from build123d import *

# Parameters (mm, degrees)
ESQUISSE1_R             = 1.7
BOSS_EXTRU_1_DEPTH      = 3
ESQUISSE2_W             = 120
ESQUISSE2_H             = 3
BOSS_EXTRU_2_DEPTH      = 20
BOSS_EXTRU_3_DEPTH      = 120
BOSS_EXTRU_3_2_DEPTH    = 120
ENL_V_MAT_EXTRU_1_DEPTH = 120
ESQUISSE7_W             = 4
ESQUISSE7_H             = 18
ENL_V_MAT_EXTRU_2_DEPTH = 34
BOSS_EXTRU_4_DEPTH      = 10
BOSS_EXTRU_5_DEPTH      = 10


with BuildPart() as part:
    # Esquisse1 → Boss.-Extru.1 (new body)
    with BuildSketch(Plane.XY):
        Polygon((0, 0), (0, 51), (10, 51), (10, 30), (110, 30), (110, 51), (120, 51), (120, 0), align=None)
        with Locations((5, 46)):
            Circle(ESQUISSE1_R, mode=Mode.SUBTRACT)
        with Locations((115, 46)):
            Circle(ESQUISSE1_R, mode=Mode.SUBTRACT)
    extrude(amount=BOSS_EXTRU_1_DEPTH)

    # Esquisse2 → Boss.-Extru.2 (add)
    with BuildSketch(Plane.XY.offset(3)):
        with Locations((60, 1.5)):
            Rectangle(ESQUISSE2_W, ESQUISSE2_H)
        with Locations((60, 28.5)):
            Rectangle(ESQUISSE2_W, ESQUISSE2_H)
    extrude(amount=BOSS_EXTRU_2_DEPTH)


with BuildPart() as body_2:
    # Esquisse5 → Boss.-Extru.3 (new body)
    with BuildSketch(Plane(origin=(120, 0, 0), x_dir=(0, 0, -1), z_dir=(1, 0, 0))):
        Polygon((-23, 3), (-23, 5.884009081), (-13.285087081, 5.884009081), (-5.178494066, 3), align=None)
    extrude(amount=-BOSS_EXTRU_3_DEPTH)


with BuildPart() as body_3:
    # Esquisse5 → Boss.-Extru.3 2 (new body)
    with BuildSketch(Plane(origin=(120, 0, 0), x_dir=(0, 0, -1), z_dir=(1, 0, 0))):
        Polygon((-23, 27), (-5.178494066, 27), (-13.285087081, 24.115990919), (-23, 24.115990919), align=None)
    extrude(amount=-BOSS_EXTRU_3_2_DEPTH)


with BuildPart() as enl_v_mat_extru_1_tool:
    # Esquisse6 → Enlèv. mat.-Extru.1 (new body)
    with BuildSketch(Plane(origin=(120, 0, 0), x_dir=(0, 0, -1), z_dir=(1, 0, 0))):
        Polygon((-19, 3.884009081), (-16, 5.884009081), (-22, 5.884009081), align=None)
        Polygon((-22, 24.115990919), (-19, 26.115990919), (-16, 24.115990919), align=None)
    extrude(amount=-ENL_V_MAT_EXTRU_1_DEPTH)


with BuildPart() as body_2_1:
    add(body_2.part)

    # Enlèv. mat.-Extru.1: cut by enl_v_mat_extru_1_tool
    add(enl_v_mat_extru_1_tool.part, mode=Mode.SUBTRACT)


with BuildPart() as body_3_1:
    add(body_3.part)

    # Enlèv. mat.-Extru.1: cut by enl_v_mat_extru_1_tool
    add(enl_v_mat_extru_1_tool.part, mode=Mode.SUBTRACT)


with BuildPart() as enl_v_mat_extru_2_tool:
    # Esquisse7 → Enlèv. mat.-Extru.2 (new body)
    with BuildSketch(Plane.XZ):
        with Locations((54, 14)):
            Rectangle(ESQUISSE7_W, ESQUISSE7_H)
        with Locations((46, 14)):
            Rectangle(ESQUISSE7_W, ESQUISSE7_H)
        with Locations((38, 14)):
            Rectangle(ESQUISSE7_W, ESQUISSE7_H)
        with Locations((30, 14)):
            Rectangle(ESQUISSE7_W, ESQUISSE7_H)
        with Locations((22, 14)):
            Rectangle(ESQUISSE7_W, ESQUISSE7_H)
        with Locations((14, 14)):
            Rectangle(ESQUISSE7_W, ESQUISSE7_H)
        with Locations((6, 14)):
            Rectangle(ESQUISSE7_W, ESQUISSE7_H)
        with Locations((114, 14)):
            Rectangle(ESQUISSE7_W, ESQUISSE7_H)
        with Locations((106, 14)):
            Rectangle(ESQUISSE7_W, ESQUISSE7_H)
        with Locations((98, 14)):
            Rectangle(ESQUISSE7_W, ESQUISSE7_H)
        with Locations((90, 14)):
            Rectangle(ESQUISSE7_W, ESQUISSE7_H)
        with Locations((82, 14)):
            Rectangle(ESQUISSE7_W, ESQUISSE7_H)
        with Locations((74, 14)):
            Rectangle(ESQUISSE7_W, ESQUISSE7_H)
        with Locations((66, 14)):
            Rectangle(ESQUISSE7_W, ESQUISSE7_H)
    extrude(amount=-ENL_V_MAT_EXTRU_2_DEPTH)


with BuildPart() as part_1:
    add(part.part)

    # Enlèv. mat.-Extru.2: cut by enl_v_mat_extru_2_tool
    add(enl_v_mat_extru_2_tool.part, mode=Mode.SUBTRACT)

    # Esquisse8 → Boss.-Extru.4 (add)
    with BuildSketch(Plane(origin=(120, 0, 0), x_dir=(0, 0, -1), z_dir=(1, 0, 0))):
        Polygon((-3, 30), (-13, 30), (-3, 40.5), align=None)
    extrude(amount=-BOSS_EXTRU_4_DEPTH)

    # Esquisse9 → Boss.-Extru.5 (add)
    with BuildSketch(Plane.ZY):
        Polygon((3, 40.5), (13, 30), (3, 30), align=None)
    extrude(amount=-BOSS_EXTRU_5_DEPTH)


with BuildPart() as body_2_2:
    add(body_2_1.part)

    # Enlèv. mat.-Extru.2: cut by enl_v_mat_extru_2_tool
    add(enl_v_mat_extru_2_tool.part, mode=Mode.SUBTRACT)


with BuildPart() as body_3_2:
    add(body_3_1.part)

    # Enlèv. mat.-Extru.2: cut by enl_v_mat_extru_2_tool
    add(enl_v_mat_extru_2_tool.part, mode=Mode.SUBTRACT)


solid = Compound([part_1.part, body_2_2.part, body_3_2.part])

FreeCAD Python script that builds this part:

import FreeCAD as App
import Part
import Sketcher


def add_polygon(sketch, points):
    """Adds a closed chain of lines whose ends are joined by coincident constraints."""
    first, n = sketch.GeometryCount, len(points)
    for a, b in zip(points, points[1:] + points[:1]):
        sketch.addGeometry(Part.LineSegment(App.Vector(*a, 0), App.Vector(*b, 0)), False)
    for i in range(n):
        sketch.addConstraint(Sketcher.Constraint("Coincident", first + i, 2, first + (i + 1) % n, 1))

doc = App.newDocument("Part")
body = doc.addObject("PartDesign::Body", "Body")

sketch1 = doc.addObject("Sketcher::SketchObject", "Sketch")
body.addObject(sketch1)
sketch1.AttachmentSupport = (doc.XY_Plane, [""])
sketch1.MapMode = "FlatFace"
add_polygon(sketch1, [(0, 51), (0, 0), (120, 0), (120, 51), (110, 51), (110, 30), (10, 30), (10, 51)])
sketch1.addGeometry(Part.Circle(App.Vector(115, 46, 0), App.Vector(0, 0, 1), 1.7), False)
sketch1.addGeometry(Part.Circle(App.Vector(5, 46, 0), App.Vector(0, 0, 1), 1.7), False)
sketch1.addConstraint([
    Sketcher.Constraint("Vertical", 0),
    Sketcher.Constraint("Horizontal", 1),
    Sketcher.Constraint("Vertical", 2),
    Sketcher.Constraint("Horizontal", 3),
    Sketcher.Constraint("Vertical", 4),
    Sketcher.Constraint("Horizontal", 5),
    Sketcher.Constraint("Vertical", 6),
    Sketcher.Constraint("Horizontal", 7),
    Sketcher.Constraint("Coincident", 0, 2, -1, 1),
    Sketcher.Constraint("Equal", 8, 9),
    Sketcher.Constraint("Horizontal", 8, 3, 9, 3),
    Sketcher.Constraint("Horizontal", 3, 2, 6, 2),
    Sketcher.Constraint("Equal", 3, 7),
    Sketcher.Constraint("Diameter", 8, 3.4),
    Sketcher.Constraint("DistanceX", 1, 1, 1, 2, 120.0),
    Sketcher.Constraint("DistanceX", 3, 2, 3, 1, 10.0),
    Sketcher.Constraint("DistanceY", 0, 2, 0, 1, 51.0),
    Sketcher.Constraint("DistanceY", 4, 2, 4, 1, 21.0),
    Sketcher.Constraint("DistanceX", -1, 1, 8, 3, 115.0),
    Sketcher.Constraint("DistanceY", -1, 1, 8, 3, 46.0),
    Sketcher.Constraint("DistanceX", -1, 1, 9, 3, 5.0),
])
pad1 = doc.addObject("PartDesign::Pad", "Pad")
body.addObject(pad1)
pad1.Profile = sketch1
pad1.Length = 3

sketch2 = doc.addObject("Sketcher::SketchObject", "Sketch001")
body.addObject(sketch2)
sketch2.AttachmentSupport = (doc.XY_Plane, [""])
sketch2.MapMode = "FlatFace"
sketch2.AttachmentOffset = App.Placement(App.Vector(0, 0, 3), App.Rotation())
add_polygon(sketch2, [(0, 3), (0, 0), (120, 0), (120, 3)])
add_polygon(sketch2, [(0, 30), (0, 27), (120, 27), (120, 30)])
sketch2.addConstraint([
    Sketcher.Constraint("Vertical", 0),
    Sketcher.Constraint("Horizontal", 1),
    Sketcher.Constraint("Vertical", 2),
    Sketcher.Constraint("Horizontal", 3),
    Sketcher.Constraint("Vertical", 4),
    Sketcher.Constraint("Horizontal", 5),
    Sketcher.Constraint("Vertical", 6),
    Sketcher.Constraint("Horizontal", 7),
    Sketcher.Constraint("Coincident", 0, 2, -1, 1),
    Sketcher.Constraint("PointOnObject", 4, 2, -2),
    Sketcher.Constraint("Vertical", 2, 2, 5, 2),
    Sketcher.Constraint("Equal", 2, 4),
    Sketcher.Constraint("DistanceX", 1, 1, 1, 2, 120.0),
    Sketcher.Constraint("DistanceY", 0, 2, 0, 1, 3.0),
    Sketcher.Constraint("DistanceY", -1, 1, 4, 2, 27.0),
])
pad2 = doc.addObject("PartDesign::Pad", "Pad001")
body.addObject(pad2)
pad2.Profile = sketch2
pad2.Length = 20
body2 = doc.addObject("PartDesign::Body", "Body001")

sketch3 = doc.addObject("Sketcher::SketchObject", "Sketch002")
body2.addObject(sketch3)
sketch3.AttachmentSupport = (doc.getObject("YZ_Plane001"), [""])
sketch3.MapMode = "FlatFace"
sketch3.AttachmentOffset = App.Placement(App.Vector(0, 0, 120), App.Rotation())
add_polygon(sketch3, [(5.9, 23), (3, 23), (3, 5.2), (5.9, 13.3)])
sketch3.addConstraint([
    Sketcher.Constraint("Horizontal", 0),
    Sketcher.Constraint("Vertical", 1),
    Sketcher.Constraint("Vertical", 3),
    Sketcher.Constraint("DistanceX", -1, 1, 0, 2, 3.0),
    Sketcher.Constraint("DistanceY", -1, 1, 0, 2, 23.0),
    Sketcher.Constraint("DistanceX", 0, 2, 0, 1, 2.884009),
    Sketcher.Constraint("DistanceY", 1, 2, 1, 1, 17.821506),
    Sketcher.Constraint("DistanceY", 3, 1, 3, 2, 9.714913),
])
pad3 = doc.addObject("PartDesign::Pad", "Pad002")
body2.addObject(pad3)
pad3.Profile = sketch3
pad3.Length = 120
pad3.Reversed = True
body3 = doc.addObject("PartDesign::Body", "Body002")

sketch4 = doc.addObject("Sketcher::SketchObject", "Sketch003")
body3.addObject(sketch4)
sketch4.AttachmentSupport = (doc.getObject("YZ_Plane002"), [""])
sketch4.MapMode = "FlatFace"
sketch4.AttachmentOffset = App.Placement(App.Vector(0, 0, 120), App.Rotation())
add_polygon(sketch4, [(27, 5.2), (27, 23), (24.1, 23), (24.1, 13.3)])
sketch4.addConstraint([
    Sketcher.Constraint("Vertical", 0),
    Sketcher.Constraint("Horizontal", 1),
    Sketcher.Constraint("Vertical", 2),
    Sketcher.Constraint("DistanceX", -1, 1, 0, 2, 27.0),
    Sketcher.Constraint("DistanceY", -1, 1, 0, 2, 23.0),
    Sketcher.Constraint("DistanceX", 1, 2, 1, 1, 2.884009),
    Sketcher.Constraint("DistanceY", 0, 1, 0, 2, 17.821506),
    Sketcher.Constraint("DistanceY", 2, 2, 2, 1, 9.714913),
])
pad4 = doc.addObject("PartDesign::Pad", "Pad003")
body3.addObject(pad4)
pad4.Profile = sketch4
pad4.Length = 120
pad4.Reversed = True
body4 = doc.addObject("PartDesign::Body", "Body003")
body4.AllowCompound = True

sketch5 = doc.addObject("Sketcher::SketchObject", "Sketch004")
body4.addObject(sketch5)
sketch5.AttachmentSupport = (doc.getObject("YZ_Plane003"), [""])
sketch5.MapMode = "FlatFace"
sketch5.AttachmentOffset = App.Placement(App.Vector(0, 0, 120), App.Rotation())
add_polygon(sketch5, [(3.9, 19), (5.9, 16), (5.9, 22)])
add_polygon(sketch5, [(26.1, 19), (24.1, 22), (24.1, 16)])
sketch5.addConstraint([
    Sketcher.Constraint("Vertical", 1),
    Sketcher.Constraint("Vertical", 4),
    Sketcher.Constraint("Parallel", 0, 3),
    Sketcher.Constraint("Parallel", 2, 5),
    Sketcher.Constraint("Horizontal", 1, 2, 3, 2),
    Sketcher.Constraint("Horizontal", 0, 2, 4, 2),
    Sketcher.Constraint("Horizontal", 2, 2, 5, 2),
    Sketcher.Constraint("DistanceY", 1, 1, 1, 2, 6.0),
    Sketcher.Constraint("DistanceY", -1, 1, 0, 2, 16.0),
    Sketcher.Constraint("DistanceX", 2, 2, 0, 2, 2.0),
    Sketcher.Constraint("DistanceX", -1, 1, 0, 2, 5.884009),
    Sketcher.Constraint("DistanceX", -1, 1, 3, 2, 24.115991),
])
pad5 = doc.addObject("PartDesign::Pad", "Pad004")
body4.addObject(pad5)
pad5.Profile = sketch5
pad5.Length = 120
pad5.Reversed = True
doc.recompute()

body5 = doc.addObject("PartDesign::Body", "Body004")
body5.BaseFeature = body4
boolean = doc.addObject("PartDesign::Boolean", "Boolean")
body2.addObject(boolean)
boolean.Type = "Cut"
boolean.addObjects([body5])
doc.recompute()

boolean2 = doc.addObject("PartDesign::Boolean", "Boolean001")
body3.addObject(boolean2)
boolean2.Type = "Cut"
boolean2.addObjects([body4])
body6 = doc.addObject("PartDesign::Body", "Body005")
body6.AllowCompound = True

sketch6 = doc.addObject("Sketcher::SketchObject", "Sketch005")
body6.addObject(sketch6)
sketch6.AttachmentSupport = (doc.getObject("XZ_Plane005"), [""])
sketch6.MapMode = "FlatFace"
add_polygon(sketch6, [(52, 23), (52, 5), (56, 5), (56, 23)])
add_polygon(sketch6, [(44, 23), (44, 5), (48, 5), (48, 23)])
add_polygon(sketch6, [(36, 23), (36, 5), (40, 5), (40, 23)])
add_polygon(sketch6, [(28, 23), (28, 5), (32, 5), (32, 23)])
add_polygon(sketch6, [(20, 23), (20, 5), (24, 5), (24, 23)])
add_polygon(sketch6, [(12, 23), (12, 5), (16, 5), (16, 23)])
add_polygon(sketch6, [(4, 23), (4, 5), (8, 5), (8, 23)])
add_polygon(sketch6, [(112, 23), (112, 5), (116, 5), (116, 23)])
add_polygon(sketch6, [(104, 23), (104, 5), (108, 5), (108, 23)])
add_polygon(sketch6, [(96, 23), (96, 5), (100, 5), (100, 23)])
add_polygon(sketch6, [(88, 23), (88, 5), (92, 5), (92, 23)])
add_polygon(sketch6, [(80, 23), (80, 5), (84, 5), (84, 23)])
add_polygon(sketch6, [(72, 23), (72, 5), (76, 5), (76, 23)])
add_polygon(sketch6, [(64, 23), (64, 5), (68, 5), (68, 23)])
sketch6.addConstraint([
    Sketcher.Constraint("Vertical", 0),
    Sketcher.Constraint("Horizontal", 1),
    Sketcher.Constraint("Vertical", 2),
    Sketcher.Constraint("Horizontal", 3),
    Sketcher.Constraint("Vertical", 4),
    Sketcher.Constraint("Horizontal", 5),
    Sketcher.Constraint("Vertical", 6),
    Sketcher.Constraint("Horizontal", 7),
    Sketcher.Constraint("Vertical", 8),
    Sketcher.Constraint("Horizontal", 9),
    Sketcher.Constraint("Vertical", 10),
    Sketcher.Constraint("Horizontal", 11),
    Sketcher.Constraint("Vertical", 12),
    Sketcher.Constraint("Horizontal", 13),
    Sketcher.Constraint("Vertical", 14),
    Sketcher.Constraint("Horizontal", 15),
    Sketcher.Constraint("Vertical", 16),
    Sketcher.Constraint("Horizontal", 17),
    Sketcher.Constraint("Vertical", 18),
    Sketcher.Constraint("Horizontal", 19),
    Sketcher.Constraint("Vertical", 20),
    Sketcher.Constraint("Horizontal", 21),
    Sketcher.Constraint("Vertical", 22),
    Sketcher.Constraint("Horizontal", 23),
    Sketcher.Constraint("Vertical", 24),
    Sketcher.Constraint("Horizontal", 25),
    Sketcher.Constraint("Vertical", 26),
    Sketcher.Constraint("Horizontal", 27),
    Sketcher.Constraint("Vertical", 28),
    Sketcher.Constraint("Horizontal", 29),
    Sketcher.Constraint("Vertical", 30),
    Sketcher.Constraint("Horizontal", 31),
    Sketcher.Constraint("Vertical", 32),
    Sketcher.Constraint("Horizontal", 33),
    Sketcher.Constraint("Vertical", 34),
    Sketcher.Constraint("Horizontal", 35),
    Sketcher.Constraint("Vertical", 36),
    Sketcher.Constraint("Horizontal", 37),
    Sketcher.Constraint("Vertical", 38),
    Sketcher.Constraint("Horizontal", 39),
    Sketcher.Constraint("Vertical", 40),
    Sketcher.Constraint("Horizontal", 41),
    Sketcher.Constraint("Vertical", 42),
    Sketcher.Constraint("Horizontal", 43),
    Sketcher.Constraint("Vertical", 44),
    Sketcher.Constraint("Horizontal", 45),
    Sketcher.Constraint("Vertical", 46),
    Sketcher.Constraint("Horizontal", 47),
    Sketcher.Constraint("Vertical", 48),
    Sketcher.Constraint("Horizontal", 49),
    Sketcher.Constraint("Vertical", 50),
    Sketcher.Constraint("Horizontal", 51),
    Sketcher.Constraint("Vertical", 52),
    Sketcher.Constraint("Horizontal", 53),
    Sketcher.Constraint("Vertical", 54),
    Sketcher.Constraint("Horizontal", 55),
    Sketcher.Constraint("Horizontal", 1, 2, 4, 2),
    Sketcher.Constraint("Horizontal", 3, 2, 6, 2),
    Sketcher.Constraint("Horizontal", 5, 2, 8, 2),
    Sketcher.Constraint("Horizontal", 7, 2, 10, 2),
    Sketcher.Constraint("Horizontal", 9, 2, 12, 2),
    Sketcher.Constraint("Horizontal", 11, 2, 14, 2),
    Sketcher.Constraint("Horizontal", 13, 2, 16, 2),
    Sketcher.Constraint("Horizontal", 15, 2, 18, 2),
    Sketcher.Constraint("Horizontal", 17, 2, 20, 2),
    Sketcher.Constraint("Horizontal", 19, 2, 22, 2),
    Sketcher.Constraint("Horizontal", 21, 2, 24, 2),
    Sketcher.Constraint("Horizontal", 23, 2, 26, 2),
    Sketcher.Constraint("Horizontal", 25, 2, 28, 2),
    Sketcher.Constraint("Horizontal", 27, 2, 30, 2),
    Sketcher.Constraint("Horizontal", 29, 2, 32, 2),
    Sketcher.Constraint("Horizontal", 31, 2, 34, 2),
    Sketcher.Constraint("Horizontal", 33, 2, 36, 2),
    Sketcher.Constraint("Horizontal", 35, 2, 38, 2),
    Sketcher.Constraint("Horizontal", 37, 2, 40, 2),
    Sketcher.Constraint("Horizontal", 39, 2, 42, 2),
    Sketcher.Constraint("Horizontal", 41, 2, 44, 2),
    Sketcher.Constraint("Horizontal", 43, 2, 46, 2),
    Sketcher.Constraint("Horizontal", 45, 2, 48, 2),
    Sketcher.Constraint("Horizontal", 47, 2, 50, 2),
    Sketcher.Constraint("Horizontal", 49, 2, 52, 2),
    Sketcher.Constraint("Horizontal", 51, 2, 54, 2),
    Sketcher.Constraint("Equal", 3, 5),
    Sketcher.Constraint("Equal", 7, 9),
    Sketcher.Constraint("Equal", 11, 13),
    Sketcher.Constraint("Equal", 15, 17),
    Sketcher.Constraint("Equal", 19, 21),
    Sketcher.Constraint("Equal", 23, 25),
    Sketcher.Constraint("Equal", 27, 29),
    Sketcher.Constraint("Equal", 31, 33),
    Sketcher.Constraint("Equal", 35, 37),
    Sketcher.Constraint("Equal", 39, 41),
    Sketcher.Constraint("Equal", 43, 45),
    Sketcher.Constraint("Equal", 47, 49),
    Sketcher.Constraint("Equal", 51, 53),
    Sketcher.Constraint("DistanceX", 1, 1, 1, 2, 4.0),
    Sketcher.Constraint("DistanceY", 0, 2, 0, 1, 18.0),
    Sketcher.Constraint("DistanceX", -1, 1, 0, 2, 52.0),
    Sketcher.Constraint("DistanceY", -1, 1, 0, 2, 5.0),
    Sketcher.Constraint("DistanceX", -1, 1, 4, 2, 44.0),
    Sketcher.Constraint("DistanceX", -1, 1, 8, 2, 36.0),
    Sketcher.Constraint("DistanceX", -1, 1, 12, 2, 28.0),
    Sketcher.Constraint("DistanceX", -1, 1, 16, 2, 20.0),
    Sketcher.Constraint("DistanceX", -1, 1, 20, 2, 12.0),
    Sketcher.Constraint("DistanceX", -1, 1, 24, 2, 4.0),
    Sketcher.Constraint("DistanceX", -1, 1, 28, 2, 112.0),
    Sketcher.Constraint("DistanceX", -1, 1, 32, 2, 104.0),
    Sketcher.Constraint("DistanceX", -1, 1, 36, 2, 96.0),
    Sketcher.Constraint("DistanceX", -1, 1, 40, 2, 88.0),
    Sketcher.Constraint("DistanceX", -1, 1, 44, 2, 80.0),
    Sketcher.Constraint("DistanceX", -1, 1, 48, 2, 72.0),
    Sketcher.Constraint("DistanceX", -1, 1, 52, 2, 64.0),
])
pad6 = doc.addObject("PartDesign::Pad", "Pad005")
body6.addObject(pad6)
pad6.Profile = sketch6
pad6.Length = 34
pad6.Reversed = True
doc.recompute()

body7 = doc.addObject("PartDesign::Body", "Body006")
body7.BaseFeature = body6
boolean3 = doc.addObject("PartDesign::Boolean", "Boolean002")
body.addObject(boolean3)
boolean3.Type = "Cut"
boolean3.addObjects([body7])
doc.recompute()

sketch7 = doc.addObject("Sketcher::SketchObject", "Sketch006")
body.addObject(sketch7)
sketch7.AttachmentSupport = (doc.YZ_Plane, [""])
sketch7.MapMode = "FlatFace"
sketch7.AttachmentOffset = App.Placement(App.Vector(0, 0, 120), App.Rotation())
add_polygon(sketch7, [(30, 13), (30, 3), (40, 3)])
sketch7.addConstraint([
    Sketcher.Constraint("Vertical", 0),
    Sketcher.Constraint("Horizontal", 1),
    Sketcher.Constraint("DistanceY", 0, 2, 0, 1, 10.0),
    Sketcher.Constraint("DistanceX", 1, 1, 1, 2, 10.5),
    Sketcher.Constraint("DistanceX", -1, 1, 0, 2, 30.0),
    Sketcher.Constraint("DistanceY", -1, 1, 0, 2, 3.0),
])
pad7 = doc.addObject("PartDesign::Pad", "Pad006")
body.addObject(pad7)
pad7.Profile = sketch7
pad7.Length = 10
pad7.Reversed = True

sketch8 = doc.addObject("Sketcher::SketchObject", "Sketch007")
body.addObject(sketch8)
sketch8.AttachmentSupport = (doc.YZ_Plane, [""])
sketch8.MapMode = "FlatFace"
add_polygon(sketch8, [(30, 13), (40, 3), (30, 3)])
sketch8.addConstraint([
    Sketcher.Constraint("Horizontal", 1),
    Sketcher.Constraint("Vertical", 2),
    Sketcher.Constraint("DistanceY", 2, 1, 2, 2, 10.0),
    Sketcher.Constraint("DistanceX", 1, 2, 1, 1, 10.5),
    Sketcher.Constraint("DistanceY", -1, 1, 0, 2, 3.0),
    Sketcher.Constraint("DistanceX", -1, 1, 1, 2, 30.0),
])
pad8 = doc.addObject("PartDesign::Pad", "Pad007")
body.addObject(pad8)
pad8.Profile = sketch8
pad8.Length = 10
body2.AllowCompound = True
doc.recompute()

body8 = doc.addObject("PartDesign::Body", "Body007")
body8.BaseFeature = body6
boolean4 = doc.addObject("PartDesign::Boolean", "Boolean003")
body2.addObject(boolean4)
boolean4.Type = "Cut"
boolean4.addObjects([body8])
doc.recompute()
body3.AllowCompound = True
doc.recompute()

boolean5 = doc.addObject("PartDesign::Boolean", "Boolean004")
body3.addObject(boolean5)
boolean5.Type = "Cut"
boolean5.addObjects([body6])

doc.recompute()
